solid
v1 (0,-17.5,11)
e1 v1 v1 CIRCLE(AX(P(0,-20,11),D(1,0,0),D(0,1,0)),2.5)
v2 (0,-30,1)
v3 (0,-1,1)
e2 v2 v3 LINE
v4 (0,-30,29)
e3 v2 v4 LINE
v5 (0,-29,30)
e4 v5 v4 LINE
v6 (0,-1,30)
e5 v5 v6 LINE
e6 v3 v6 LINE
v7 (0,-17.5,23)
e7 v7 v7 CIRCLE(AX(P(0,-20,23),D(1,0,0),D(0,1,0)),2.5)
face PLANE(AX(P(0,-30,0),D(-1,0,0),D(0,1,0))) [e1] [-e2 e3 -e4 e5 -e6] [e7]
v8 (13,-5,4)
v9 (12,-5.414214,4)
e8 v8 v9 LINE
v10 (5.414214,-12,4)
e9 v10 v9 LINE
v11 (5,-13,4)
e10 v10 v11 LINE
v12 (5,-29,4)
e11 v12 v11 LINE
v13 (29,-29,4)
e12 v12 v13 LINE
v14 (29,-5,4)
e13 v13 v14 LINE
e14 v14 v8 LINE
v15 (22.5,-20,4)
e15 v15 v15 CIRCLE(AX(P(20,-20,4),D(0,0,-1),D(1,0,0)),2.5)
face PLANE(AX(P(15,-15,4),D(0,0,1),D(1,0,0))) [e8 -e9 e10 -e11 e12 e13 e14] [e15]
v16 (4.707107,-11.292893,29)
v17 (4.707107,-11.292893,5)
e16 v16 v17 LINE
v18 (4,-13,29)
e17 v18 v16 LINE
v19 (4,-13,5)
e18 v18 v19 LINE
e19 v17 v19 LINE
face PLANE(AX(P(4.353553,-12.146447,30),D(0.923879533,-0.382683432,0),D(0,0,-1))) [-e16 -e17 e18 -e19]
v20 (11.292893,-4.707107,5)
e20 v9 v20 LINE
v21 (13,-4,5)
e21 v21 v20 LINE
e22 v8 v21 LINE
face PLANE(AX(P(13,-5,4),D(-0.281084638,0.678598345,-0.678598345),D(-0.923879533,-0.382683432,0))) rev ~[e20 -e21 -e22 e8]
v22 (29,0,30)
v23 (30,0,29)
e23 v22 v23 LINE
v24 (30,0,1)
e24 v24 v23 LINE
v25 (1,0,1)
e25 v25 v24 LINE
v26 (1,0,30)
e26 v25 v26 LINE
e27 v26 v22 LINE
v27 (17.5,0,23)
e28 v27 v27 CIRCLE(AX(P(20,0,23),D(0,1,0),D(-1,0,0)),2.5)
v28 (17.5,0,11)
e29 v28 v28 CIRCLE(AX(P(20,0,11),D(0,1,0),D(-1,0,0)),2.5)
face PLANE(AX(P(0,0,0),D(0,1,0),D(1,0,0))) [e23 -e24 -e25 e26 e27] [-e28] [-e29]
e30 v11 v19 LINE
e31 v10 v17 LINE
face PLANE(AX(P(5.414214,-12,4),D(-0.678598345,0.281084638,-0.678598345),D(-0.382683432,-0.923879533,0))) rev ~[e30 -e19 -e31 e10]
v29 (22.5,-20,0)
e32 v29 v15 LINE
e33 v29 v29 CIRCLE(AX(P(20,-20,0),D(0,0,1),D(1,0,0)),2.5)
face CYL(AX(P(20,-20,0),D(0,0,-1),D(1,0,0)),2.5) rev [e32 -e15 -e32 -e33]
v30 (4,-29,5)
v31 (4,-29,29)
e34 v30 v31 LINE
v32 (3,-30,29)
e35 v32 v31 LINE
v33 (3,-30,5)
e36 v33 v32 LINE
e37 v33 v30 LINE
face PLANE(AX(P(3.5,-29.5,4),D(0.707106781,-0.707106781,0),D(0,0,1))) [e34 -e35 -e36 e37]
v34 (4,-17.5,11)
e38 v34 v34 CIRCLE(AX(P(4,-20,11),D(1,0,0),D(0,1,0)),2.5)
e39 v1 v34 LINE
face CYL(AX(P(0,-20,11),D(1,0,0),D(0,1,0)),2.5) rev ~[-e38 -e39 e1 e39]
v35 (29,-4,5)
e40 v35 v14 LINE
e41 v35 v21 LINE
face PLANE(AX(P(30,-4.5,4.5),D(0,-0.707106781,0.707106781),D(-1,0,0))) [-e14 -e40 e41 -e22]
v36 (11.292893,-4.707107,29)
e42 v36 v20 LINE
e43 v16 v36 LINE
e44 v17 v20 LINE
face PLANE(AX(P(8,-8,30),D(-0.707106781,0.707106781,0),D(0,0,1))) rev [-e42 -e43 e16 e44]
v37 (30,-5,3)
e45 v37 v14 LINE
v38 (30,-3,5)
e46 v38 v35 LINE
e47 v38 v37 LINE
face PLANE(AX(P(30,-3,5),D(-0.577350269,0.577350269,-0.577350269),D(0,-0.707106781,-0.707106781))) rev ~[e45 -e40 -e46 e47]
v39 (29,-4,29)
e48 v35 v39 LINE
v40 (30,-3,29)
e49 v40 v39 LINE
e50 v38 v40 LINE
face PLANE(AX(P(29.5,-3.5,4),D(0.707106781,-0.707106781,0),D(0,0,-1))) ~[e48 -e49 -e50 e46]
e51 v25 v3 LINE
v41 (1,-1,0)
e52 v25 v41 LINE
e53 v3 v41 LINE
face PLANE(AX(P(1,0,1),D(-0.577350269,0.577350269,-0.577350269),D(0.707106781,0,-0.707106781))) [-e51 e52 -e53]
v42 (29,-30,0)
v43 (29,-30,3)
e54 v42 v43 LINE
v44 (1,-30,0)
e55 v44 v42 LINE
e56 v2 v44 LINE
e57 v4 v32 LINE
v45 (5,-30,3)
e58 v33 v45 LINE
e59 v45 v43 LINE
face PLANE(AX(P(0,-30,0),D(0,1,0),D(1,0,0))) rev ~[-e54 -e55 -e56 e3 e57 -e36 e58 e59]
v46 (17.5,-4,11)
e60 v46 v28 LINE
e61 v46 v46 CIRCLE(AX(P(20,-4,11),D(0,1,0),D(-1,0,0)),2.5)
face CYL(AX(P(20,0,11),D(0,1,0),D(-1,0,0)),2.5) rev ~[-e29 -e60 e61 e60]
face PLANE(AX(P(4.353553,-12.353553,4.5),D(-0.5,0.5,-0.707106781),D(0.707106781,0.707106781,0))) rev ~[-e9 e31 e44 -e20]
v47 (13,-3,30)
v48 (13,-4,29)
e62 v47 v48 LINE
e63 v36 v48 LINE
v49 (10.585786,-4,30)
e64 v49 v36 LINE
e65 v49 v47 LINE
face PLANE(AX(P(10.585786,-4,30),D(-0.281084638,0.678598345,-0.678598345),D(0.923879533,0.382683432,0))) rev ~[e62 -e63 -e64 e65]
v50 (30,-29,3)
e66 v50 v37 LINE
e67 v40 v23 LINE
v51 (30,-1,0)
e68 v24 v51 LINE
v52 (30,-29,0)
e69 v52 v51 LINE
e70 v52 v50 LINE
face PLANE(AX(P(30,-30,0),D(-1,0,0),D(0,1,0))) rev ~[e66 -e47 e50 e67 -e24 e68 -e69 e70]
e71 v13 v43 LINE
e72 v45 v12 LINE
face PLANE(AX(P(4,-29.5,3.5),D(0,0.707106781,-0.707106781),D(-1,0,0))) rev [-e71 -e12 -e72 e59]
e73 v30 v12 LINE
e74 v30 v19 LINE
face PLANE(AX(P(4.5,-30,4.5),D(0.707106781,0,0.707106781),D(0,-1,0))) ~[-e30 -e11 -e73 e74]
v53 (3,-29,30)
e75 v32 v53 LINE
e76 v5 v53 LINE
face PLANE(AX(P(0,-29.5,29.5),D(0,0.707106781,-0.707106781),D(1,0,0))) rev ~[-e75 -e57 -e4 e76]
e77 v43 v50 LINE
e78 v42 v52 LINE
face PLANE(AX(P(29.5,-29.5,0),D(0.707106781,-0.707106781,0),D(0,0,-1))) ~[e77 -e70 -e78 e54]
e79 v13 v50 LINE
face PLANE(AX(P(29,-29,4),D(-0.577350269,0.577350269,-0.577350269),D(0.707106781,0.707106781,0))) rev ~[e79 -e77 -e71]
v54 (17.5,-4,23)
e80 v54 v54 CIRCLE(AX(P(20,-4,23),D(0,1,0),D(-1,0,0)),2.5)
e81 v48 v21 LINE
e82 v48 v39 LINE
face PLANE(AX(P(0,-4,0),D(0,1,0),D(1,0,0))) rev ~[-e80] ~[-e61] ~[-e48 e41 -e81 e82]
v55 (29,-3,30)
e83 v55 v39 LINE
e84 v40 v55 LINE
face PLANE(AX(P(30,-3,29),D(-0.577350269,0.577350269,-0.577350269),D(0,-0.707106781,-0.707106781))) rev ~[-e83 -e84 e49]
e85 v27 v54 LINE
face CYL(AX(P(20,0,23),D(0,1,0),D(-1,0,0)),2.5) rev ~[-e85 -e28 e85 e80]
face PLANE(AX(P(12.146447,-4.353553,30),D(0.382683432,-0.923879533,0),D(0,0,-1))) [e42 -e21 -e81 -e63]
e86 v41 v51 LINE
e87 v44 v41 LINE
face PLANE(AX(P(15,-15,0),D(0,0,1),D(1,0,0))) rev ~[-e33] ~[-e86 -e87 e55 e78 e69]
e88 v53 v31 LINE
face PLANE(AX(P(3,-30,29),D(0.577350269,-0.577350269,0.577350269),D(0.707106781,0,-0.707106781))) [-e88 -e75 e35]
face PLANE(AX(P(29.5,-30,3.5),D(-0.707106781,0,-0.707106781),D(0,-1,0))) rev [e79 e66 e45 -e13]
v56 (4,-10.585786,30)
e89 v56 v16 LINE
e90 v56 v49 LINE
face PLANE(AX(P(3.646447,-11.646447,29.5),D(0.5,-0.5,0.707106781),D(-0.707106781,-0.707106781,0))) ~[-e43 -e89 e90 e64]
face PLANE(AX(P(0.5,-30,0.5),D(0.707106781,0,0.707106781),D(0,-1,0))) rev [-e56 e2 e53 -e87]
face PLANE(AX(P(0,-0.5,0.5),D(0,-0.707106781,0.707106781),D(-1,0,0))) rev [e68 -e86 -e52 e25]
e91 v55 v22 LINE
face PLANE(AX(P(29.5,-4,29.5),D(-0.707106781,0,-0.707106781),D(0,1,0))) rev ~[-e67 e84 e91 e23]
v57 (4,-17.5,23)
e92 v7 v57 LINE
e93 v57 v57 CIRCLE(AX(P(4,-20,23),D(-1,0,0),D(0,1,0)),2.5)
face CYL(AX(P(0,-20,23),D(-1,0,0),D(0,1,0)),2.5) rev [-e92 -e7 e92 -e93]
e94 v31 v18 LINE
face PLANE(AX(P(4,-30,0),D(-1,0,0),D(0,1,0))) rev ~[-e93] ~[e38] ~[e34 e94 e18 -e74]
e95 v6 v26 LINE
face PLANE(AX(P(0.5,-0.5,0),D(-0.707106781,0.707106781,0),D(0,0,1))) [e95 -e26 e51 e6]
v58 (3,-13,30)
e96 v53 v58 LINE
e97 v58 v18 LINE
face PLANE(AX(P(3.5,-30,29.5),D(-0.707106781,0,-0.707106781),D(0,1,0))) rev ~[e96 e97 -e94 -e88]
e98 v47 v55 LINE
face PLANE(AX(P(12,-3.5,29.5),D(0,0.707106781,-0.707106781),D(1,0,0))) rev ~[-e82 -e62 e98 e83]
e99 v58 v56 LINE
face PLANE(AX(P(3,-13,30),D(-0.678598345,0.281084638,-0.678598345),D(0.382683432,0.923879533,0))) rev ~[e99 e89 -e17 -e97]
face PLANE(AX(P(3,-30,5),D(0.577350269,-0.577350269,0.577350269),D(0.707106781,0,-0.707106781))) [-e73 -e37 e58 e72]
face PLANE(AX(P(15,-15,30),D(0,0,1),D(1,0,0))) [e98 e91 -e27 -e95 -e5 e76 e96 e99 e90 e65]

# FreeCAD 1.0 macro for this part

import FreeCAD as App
import Part
import Sketcher
from FreeCAD import Vector
Q = App.Units.Quantity


def edges_at(feature, points):
    """Names of the edges that pass closest to the given points."""
    edges = feature.Shape.Edges
    near = lambda p: min(range(len(edges)), key=lambda i: edges[i].distToShape(Part.Vertex(*p))[0])
    return sorted({f"Edge{near(p) + 1}" for p in points})


def faces_at(feature, points):
    """Names of the faces that lie closest to the given points."""
    faces = feature.Shape.Faces
    near = lambda p: min(range(len(faces)), key=lambda i: faces[i].distToShape(Part.Vertex(*p))[0])
    return sorted({f"Face{near(p) + 1}" for p in points})


def add_polygon(sketch, points):
    """Adds a closed chain of lines whose ends are joined by coincident constraints."""
    first, n = sketch.GeometryCount, len(points)
    for a, b in zip(points, points[1:] + points[:1]):
        sketch.addGeometry(Part.LineSegment(App.Vector(*a, 0), App.Vector(*b, 0)), False)
    for i in range(n):
        sketch.addConstraint(Sketcher.Constraint("Coincident", first + i, 2, first + (i + 1) % n, 1))

doc = App.newDocument("Part")
params = doc.addObject("Spreadsheet::Sheet", "Params")
for row, (alias, value) in enumerate([
    ("sketch1_width", "30 mm"),
    ("pad1_length", "30 mm"),
    ("thickness_wall", "4 mm"),
    ("sketch2_diameter", "5 mm"),
    ("pocket1_length", "10 mm"),
    ("sketch3_diameter", "5 mm"),
    ("pocket2_length", "10 mm"),
    ("chamfer_size", "8 mm"),
    ("chamfer2_size", "1 mm"),
], start=1):
    params.set(f"A{row}", alias)
    params.set(f"B{row}", "=" + value)
    params.setAlias(f"B{row}", alias)

body = doc.addObject("PartDesign::Body", "Body")

sketch1 = doc.addObject("Sketcher::SketchObject", "Sketch")
body.addObject(sketch1)
sketch1.AttachmentSupport = (doc.XY_Plane, [""])
sketch1.MapMode = "FlatFace"
add_polygon(sketch1, [(0, 0), (0, -30), (30, -30), (30, 0)])
sketch1.addConstraint(Sketcher.Constraint("Vertical", 0))
sketch1.addConstraint(Sketcher.Constraint("Horizontal", 1))
sketch1.addConstraint(Sketcher.Constraint("Vertical", 2))
sketch1.addConstraint(Sketcher.Constraint("Horizontal", 3))
sketch1.addConstraint(Sketcher.Constraint("Coincident", 3, 2, -1, 1))
sketch1.addConstraint(Sketcher.Constraint("Equal", 3, 0))
sketch1.addConstraint(Sketcher.Constraint("DistanceX", 1, 1, 1, 2, Q("30 mm")))
sketch1.setExpression("Constraints[10]", "Params.sketch1_width")
pad1 = doc.addObject("PartDesign::Pad", "Pad")
body.addObject(pad1)
pad1.Profile = sketch1
pad1.setExpression("Length", "Params.pad1_length")
doc.recompute()

thickness = doc.addObject("PartDesign::Thickness", "Thickness")
body.addObject(thickness)
thickness.Base = (pad1, faces_at(pad1, [(30, -15, 15), (15, -30, 15), (15, -15, 30)]))
thickness.setExpression("Value", "Params.thickness_wall")
thickness.Reversed = True
thickness.Join = "Arc"

sketch2 = doc.addObject("Sketcher::SketchObject", "Sketch001")
body.addObject(sketch2)
sketch2.AttachmentSupport = (doc.YZ_Plane, [""])
sketch2.MapMode = "FlatFace"
sketch2.addGeometry(Part.Circle(Vector(-20, 23, 0), Vector(0, 0, 1), 2.5), False)
sketch2.addGeometry(Part.Circle(Vector(-20, 11, 0), Vector(0, 0, 1), 2.5), False)
sketch2.addConstraint(Sketcher.Constraint("Equal", 0, 1))
sketch2.addConstraint(Sketcher.Constraint("Vertical", 0, 3, 1, 3))
sketch2.addConstraint(Sketcher.Constraint("Diameter", 0, Q("5 mm")))
sketch2.addConstraint(Sketcher.Constraint("DistanceX", 0, 3, -1, 1, Q("20 mm")))
sketch2.addConstraint(Sketcher.Constraint("DistanceY", -1, 1, 0, 3, Q("23 mm")))
sketch2.addConstraint(Sketcher.Constraint("DistanceY", -1, 1, 1, 3, Q("11 mm")))
sketch2.setExpression("Constraints[2]", "Params.sketch2_diameter")
pocket1 = doc.addObject("PartDesign::Pocket", "Pocket")
body.addObject(pocket1)
pocket1.Profile = sketch2
pocket1.setExpression("Length", "Params.pocket1_length")
pocket1.Midplane = True
doc.recompute()

polarpattern = doc.addObject("PartDesign::PolarPattern", "PolarPattern")
body.addObject(polarpattern)
polarpattern.Originals = [pocket1]
polarpattern.Axis = (doc.Z_Axis, [""])
polarpattern.Angle = 90
polarpattern.Occurrences = 2
body.Tip = polarpattern

sketch3 = doc.addObject("Sketcher::SketchObject", "Sketch002")
body.addObject(sketch3)
sketch3.AttachmentSupport = (doc.XY_Plane, [""])
sketch3.MapMode = "FlatFace"
sketch3.addGeometry(Part.Circle(Vector(20, -20, 0), Vector(0, 0, 1), 2.5), False)
sketch3.addConstraint(Sketcher.Constraint("Diameter", 0, Q("5 mm")))
sketch3.addConstraint(Sketcher.Constraint("DistanceX", -1, 1, 0, 3, Q("20 mm")))
sketch3.addConstraint(Sketcher.Constraint("DistanceY", 0, 3, -1, 1, Q("20 mm")))
sketch3.setExpression("Constraints[0]", "Params.sketch3_diameter")
pocket2 = doc.addObject("PartDesign::Pocket", "Pocket001")
body.addObject(pocket2)
pocket2.Profile = sketch3
pocket2.setExpression("Length", "Params.pocket2_length")
pocket2.Reversed = True
doc.recompute()

chamfer = doc.addObject("PartDesign::Chamfer", "Chamfer")
body.addObject(chamfer)
chamfer.Base = (pocket2, edges_at(pocket2, [(4, -4, 17)]))
chamfer.setExpression("Size", "Params.chamfer_size")
doc.recompute()

chamfer2 = doc.addObject("PartDesign::Chamfer", "Chamfer001")
body.addObject(chamfer2)
chamfer2.Base = (chamfer, edges_at(chamfer, [
    (4, -21, 30),
    (8, -8, 30),
    (2, -30, 30),
    (21, -4, 30),
    (30, -2, 30),
    (4, -21, 4),
    (4, -12, 17),
    (4, -30, 17),
    (8, -8, 4),
    (12, -4, 17),
    (30, -30, 2),
    (17, -30, 4),
    (21, -4, 4),
    (30, -4, 17),
    (0, -15, 0),
    (0, 0, 15),
    (30, -17, 4),
    (15, 0, 0),
    (2, -17.5, 23),
    (2, -17.5, 11),
    (17.5, -2, 23),
    (17.5, -2, 11),
    (22.5, -20, 2),
]))
chamfer2.setExpression("Size", "Params.chamfer2_size")

doc.recompute()
